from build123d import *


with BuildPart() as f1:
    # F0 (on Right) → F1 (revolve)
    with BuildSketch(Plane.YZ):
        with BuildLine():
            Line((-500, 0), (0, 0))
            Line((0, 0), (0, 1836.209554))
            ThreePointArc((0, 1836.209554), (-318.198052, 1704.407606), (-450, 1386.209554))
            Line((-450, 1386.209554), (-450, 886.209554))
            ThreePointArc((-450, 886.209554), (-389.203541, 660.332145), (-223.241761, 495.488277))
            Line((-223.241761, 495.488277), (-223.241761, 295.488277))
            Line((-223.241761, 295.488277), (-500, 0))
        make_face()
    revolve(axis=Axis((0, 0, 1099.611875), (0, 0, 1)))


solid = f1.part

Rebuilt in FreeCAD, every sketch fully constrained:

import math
import FreeCAD as App
import Part
import Sketcher

doc = App.newDocument("Part")
body = doc.addObject("PartDesign::Body", "Body")

sketch1 = body.newObject("Sketcher::SketchObject", "Sketch")
sketch1.AttachmentSupport = (doc.getObject("YZ_Plane"), [""])
sketch1.MapMode = "FlatFace"
sketch1.addGeometry([
    Part.LineSegment(App.Vector(-500, 0, 0), App.Vector(0, 0, 0)),
    Part.LineSegment(App.Vector(0, 0, 0), App.Vector(0, 1836, 0)),
    Part.ArcOfCircle(Part.Circle(App.Vector(0, 1386, 0), App.Vector(0, 0, 1), 450), math.radians(90), math.radians(180)),
    Part.LineSegment(App.Vector(-450, 1386, 0), App.Vector(-450, 886, 0)),
    Part.ArcOfCircle(Part.Circle(App.Vector(0, 886, 0), App.Vector(0, 0, 1), 450), math.radians(180), math.radians(240)),
    Part.LineSegment(App.Vector(-223, 495, 0), App.Vector(-223, 295, 0)),
    Part.LineSegment(App.Vector(-223, 295, 0), App.Vector(-500, 0, 0)),
], False)
sketch1.addConstraint([
    Sketcher.Constraint("Coincident", 0, 2, 1, 1),
    Sketcher.Constraint("Coincident", 1, 2, 2, 1),
    Sketcher.Constraint("Tangent", 2, 2, 3, 1),
    Sketcher.Constraint("Tangent", 3, 2, 4, 1),
    Sketcher.Constraint("Coincident", 4, 2, 5, 1),
    Sketcher.Constraint("Coincident", 5, 2, 6, 1),
    Sketcher.Constraint("Coincident", 6, 2, 0, 1),
    Sketcher.Constraint("Horizontal", 0),
    Sketcher.Constraint("Vertical", 1),
    Sketcher.Constraint("Vertical", 3),
    Sketcher.Constraint("Vertical", 5),
    Sketcher.Constraint("Coincident", 0, 2, -1, 1),
    Sketcher.Constraint("Equal", 2, 4),
    Sketcher.Constraint("PointOnObject", 2, 3, -2),
    Sketcher.Constraint("Equal", 0, 3),
    Sketcher.Constraint("Radius", 2, 449.999998),
    Sketcher.Constraint("DistanceX", 0, 1, 0, 2, 500.0),
    Sketcher.Constraint("DistanceY", 5, 2, 5, 1, 200.0),
    Sketcher.Constraint("Distance", 6, 404.856079),
    Sketcher.Constraint("DistanceY", 1, 1, 1, 2, 1836.209554),
])
revolution = body.newObject("PartDesign::Revolution", "Revolution")
revolution.Profile = sketch1
revolution.ReferenceAxis = (sketch1, ["V_Axis"])
revolution.Angle = 360

doc.recompute()
